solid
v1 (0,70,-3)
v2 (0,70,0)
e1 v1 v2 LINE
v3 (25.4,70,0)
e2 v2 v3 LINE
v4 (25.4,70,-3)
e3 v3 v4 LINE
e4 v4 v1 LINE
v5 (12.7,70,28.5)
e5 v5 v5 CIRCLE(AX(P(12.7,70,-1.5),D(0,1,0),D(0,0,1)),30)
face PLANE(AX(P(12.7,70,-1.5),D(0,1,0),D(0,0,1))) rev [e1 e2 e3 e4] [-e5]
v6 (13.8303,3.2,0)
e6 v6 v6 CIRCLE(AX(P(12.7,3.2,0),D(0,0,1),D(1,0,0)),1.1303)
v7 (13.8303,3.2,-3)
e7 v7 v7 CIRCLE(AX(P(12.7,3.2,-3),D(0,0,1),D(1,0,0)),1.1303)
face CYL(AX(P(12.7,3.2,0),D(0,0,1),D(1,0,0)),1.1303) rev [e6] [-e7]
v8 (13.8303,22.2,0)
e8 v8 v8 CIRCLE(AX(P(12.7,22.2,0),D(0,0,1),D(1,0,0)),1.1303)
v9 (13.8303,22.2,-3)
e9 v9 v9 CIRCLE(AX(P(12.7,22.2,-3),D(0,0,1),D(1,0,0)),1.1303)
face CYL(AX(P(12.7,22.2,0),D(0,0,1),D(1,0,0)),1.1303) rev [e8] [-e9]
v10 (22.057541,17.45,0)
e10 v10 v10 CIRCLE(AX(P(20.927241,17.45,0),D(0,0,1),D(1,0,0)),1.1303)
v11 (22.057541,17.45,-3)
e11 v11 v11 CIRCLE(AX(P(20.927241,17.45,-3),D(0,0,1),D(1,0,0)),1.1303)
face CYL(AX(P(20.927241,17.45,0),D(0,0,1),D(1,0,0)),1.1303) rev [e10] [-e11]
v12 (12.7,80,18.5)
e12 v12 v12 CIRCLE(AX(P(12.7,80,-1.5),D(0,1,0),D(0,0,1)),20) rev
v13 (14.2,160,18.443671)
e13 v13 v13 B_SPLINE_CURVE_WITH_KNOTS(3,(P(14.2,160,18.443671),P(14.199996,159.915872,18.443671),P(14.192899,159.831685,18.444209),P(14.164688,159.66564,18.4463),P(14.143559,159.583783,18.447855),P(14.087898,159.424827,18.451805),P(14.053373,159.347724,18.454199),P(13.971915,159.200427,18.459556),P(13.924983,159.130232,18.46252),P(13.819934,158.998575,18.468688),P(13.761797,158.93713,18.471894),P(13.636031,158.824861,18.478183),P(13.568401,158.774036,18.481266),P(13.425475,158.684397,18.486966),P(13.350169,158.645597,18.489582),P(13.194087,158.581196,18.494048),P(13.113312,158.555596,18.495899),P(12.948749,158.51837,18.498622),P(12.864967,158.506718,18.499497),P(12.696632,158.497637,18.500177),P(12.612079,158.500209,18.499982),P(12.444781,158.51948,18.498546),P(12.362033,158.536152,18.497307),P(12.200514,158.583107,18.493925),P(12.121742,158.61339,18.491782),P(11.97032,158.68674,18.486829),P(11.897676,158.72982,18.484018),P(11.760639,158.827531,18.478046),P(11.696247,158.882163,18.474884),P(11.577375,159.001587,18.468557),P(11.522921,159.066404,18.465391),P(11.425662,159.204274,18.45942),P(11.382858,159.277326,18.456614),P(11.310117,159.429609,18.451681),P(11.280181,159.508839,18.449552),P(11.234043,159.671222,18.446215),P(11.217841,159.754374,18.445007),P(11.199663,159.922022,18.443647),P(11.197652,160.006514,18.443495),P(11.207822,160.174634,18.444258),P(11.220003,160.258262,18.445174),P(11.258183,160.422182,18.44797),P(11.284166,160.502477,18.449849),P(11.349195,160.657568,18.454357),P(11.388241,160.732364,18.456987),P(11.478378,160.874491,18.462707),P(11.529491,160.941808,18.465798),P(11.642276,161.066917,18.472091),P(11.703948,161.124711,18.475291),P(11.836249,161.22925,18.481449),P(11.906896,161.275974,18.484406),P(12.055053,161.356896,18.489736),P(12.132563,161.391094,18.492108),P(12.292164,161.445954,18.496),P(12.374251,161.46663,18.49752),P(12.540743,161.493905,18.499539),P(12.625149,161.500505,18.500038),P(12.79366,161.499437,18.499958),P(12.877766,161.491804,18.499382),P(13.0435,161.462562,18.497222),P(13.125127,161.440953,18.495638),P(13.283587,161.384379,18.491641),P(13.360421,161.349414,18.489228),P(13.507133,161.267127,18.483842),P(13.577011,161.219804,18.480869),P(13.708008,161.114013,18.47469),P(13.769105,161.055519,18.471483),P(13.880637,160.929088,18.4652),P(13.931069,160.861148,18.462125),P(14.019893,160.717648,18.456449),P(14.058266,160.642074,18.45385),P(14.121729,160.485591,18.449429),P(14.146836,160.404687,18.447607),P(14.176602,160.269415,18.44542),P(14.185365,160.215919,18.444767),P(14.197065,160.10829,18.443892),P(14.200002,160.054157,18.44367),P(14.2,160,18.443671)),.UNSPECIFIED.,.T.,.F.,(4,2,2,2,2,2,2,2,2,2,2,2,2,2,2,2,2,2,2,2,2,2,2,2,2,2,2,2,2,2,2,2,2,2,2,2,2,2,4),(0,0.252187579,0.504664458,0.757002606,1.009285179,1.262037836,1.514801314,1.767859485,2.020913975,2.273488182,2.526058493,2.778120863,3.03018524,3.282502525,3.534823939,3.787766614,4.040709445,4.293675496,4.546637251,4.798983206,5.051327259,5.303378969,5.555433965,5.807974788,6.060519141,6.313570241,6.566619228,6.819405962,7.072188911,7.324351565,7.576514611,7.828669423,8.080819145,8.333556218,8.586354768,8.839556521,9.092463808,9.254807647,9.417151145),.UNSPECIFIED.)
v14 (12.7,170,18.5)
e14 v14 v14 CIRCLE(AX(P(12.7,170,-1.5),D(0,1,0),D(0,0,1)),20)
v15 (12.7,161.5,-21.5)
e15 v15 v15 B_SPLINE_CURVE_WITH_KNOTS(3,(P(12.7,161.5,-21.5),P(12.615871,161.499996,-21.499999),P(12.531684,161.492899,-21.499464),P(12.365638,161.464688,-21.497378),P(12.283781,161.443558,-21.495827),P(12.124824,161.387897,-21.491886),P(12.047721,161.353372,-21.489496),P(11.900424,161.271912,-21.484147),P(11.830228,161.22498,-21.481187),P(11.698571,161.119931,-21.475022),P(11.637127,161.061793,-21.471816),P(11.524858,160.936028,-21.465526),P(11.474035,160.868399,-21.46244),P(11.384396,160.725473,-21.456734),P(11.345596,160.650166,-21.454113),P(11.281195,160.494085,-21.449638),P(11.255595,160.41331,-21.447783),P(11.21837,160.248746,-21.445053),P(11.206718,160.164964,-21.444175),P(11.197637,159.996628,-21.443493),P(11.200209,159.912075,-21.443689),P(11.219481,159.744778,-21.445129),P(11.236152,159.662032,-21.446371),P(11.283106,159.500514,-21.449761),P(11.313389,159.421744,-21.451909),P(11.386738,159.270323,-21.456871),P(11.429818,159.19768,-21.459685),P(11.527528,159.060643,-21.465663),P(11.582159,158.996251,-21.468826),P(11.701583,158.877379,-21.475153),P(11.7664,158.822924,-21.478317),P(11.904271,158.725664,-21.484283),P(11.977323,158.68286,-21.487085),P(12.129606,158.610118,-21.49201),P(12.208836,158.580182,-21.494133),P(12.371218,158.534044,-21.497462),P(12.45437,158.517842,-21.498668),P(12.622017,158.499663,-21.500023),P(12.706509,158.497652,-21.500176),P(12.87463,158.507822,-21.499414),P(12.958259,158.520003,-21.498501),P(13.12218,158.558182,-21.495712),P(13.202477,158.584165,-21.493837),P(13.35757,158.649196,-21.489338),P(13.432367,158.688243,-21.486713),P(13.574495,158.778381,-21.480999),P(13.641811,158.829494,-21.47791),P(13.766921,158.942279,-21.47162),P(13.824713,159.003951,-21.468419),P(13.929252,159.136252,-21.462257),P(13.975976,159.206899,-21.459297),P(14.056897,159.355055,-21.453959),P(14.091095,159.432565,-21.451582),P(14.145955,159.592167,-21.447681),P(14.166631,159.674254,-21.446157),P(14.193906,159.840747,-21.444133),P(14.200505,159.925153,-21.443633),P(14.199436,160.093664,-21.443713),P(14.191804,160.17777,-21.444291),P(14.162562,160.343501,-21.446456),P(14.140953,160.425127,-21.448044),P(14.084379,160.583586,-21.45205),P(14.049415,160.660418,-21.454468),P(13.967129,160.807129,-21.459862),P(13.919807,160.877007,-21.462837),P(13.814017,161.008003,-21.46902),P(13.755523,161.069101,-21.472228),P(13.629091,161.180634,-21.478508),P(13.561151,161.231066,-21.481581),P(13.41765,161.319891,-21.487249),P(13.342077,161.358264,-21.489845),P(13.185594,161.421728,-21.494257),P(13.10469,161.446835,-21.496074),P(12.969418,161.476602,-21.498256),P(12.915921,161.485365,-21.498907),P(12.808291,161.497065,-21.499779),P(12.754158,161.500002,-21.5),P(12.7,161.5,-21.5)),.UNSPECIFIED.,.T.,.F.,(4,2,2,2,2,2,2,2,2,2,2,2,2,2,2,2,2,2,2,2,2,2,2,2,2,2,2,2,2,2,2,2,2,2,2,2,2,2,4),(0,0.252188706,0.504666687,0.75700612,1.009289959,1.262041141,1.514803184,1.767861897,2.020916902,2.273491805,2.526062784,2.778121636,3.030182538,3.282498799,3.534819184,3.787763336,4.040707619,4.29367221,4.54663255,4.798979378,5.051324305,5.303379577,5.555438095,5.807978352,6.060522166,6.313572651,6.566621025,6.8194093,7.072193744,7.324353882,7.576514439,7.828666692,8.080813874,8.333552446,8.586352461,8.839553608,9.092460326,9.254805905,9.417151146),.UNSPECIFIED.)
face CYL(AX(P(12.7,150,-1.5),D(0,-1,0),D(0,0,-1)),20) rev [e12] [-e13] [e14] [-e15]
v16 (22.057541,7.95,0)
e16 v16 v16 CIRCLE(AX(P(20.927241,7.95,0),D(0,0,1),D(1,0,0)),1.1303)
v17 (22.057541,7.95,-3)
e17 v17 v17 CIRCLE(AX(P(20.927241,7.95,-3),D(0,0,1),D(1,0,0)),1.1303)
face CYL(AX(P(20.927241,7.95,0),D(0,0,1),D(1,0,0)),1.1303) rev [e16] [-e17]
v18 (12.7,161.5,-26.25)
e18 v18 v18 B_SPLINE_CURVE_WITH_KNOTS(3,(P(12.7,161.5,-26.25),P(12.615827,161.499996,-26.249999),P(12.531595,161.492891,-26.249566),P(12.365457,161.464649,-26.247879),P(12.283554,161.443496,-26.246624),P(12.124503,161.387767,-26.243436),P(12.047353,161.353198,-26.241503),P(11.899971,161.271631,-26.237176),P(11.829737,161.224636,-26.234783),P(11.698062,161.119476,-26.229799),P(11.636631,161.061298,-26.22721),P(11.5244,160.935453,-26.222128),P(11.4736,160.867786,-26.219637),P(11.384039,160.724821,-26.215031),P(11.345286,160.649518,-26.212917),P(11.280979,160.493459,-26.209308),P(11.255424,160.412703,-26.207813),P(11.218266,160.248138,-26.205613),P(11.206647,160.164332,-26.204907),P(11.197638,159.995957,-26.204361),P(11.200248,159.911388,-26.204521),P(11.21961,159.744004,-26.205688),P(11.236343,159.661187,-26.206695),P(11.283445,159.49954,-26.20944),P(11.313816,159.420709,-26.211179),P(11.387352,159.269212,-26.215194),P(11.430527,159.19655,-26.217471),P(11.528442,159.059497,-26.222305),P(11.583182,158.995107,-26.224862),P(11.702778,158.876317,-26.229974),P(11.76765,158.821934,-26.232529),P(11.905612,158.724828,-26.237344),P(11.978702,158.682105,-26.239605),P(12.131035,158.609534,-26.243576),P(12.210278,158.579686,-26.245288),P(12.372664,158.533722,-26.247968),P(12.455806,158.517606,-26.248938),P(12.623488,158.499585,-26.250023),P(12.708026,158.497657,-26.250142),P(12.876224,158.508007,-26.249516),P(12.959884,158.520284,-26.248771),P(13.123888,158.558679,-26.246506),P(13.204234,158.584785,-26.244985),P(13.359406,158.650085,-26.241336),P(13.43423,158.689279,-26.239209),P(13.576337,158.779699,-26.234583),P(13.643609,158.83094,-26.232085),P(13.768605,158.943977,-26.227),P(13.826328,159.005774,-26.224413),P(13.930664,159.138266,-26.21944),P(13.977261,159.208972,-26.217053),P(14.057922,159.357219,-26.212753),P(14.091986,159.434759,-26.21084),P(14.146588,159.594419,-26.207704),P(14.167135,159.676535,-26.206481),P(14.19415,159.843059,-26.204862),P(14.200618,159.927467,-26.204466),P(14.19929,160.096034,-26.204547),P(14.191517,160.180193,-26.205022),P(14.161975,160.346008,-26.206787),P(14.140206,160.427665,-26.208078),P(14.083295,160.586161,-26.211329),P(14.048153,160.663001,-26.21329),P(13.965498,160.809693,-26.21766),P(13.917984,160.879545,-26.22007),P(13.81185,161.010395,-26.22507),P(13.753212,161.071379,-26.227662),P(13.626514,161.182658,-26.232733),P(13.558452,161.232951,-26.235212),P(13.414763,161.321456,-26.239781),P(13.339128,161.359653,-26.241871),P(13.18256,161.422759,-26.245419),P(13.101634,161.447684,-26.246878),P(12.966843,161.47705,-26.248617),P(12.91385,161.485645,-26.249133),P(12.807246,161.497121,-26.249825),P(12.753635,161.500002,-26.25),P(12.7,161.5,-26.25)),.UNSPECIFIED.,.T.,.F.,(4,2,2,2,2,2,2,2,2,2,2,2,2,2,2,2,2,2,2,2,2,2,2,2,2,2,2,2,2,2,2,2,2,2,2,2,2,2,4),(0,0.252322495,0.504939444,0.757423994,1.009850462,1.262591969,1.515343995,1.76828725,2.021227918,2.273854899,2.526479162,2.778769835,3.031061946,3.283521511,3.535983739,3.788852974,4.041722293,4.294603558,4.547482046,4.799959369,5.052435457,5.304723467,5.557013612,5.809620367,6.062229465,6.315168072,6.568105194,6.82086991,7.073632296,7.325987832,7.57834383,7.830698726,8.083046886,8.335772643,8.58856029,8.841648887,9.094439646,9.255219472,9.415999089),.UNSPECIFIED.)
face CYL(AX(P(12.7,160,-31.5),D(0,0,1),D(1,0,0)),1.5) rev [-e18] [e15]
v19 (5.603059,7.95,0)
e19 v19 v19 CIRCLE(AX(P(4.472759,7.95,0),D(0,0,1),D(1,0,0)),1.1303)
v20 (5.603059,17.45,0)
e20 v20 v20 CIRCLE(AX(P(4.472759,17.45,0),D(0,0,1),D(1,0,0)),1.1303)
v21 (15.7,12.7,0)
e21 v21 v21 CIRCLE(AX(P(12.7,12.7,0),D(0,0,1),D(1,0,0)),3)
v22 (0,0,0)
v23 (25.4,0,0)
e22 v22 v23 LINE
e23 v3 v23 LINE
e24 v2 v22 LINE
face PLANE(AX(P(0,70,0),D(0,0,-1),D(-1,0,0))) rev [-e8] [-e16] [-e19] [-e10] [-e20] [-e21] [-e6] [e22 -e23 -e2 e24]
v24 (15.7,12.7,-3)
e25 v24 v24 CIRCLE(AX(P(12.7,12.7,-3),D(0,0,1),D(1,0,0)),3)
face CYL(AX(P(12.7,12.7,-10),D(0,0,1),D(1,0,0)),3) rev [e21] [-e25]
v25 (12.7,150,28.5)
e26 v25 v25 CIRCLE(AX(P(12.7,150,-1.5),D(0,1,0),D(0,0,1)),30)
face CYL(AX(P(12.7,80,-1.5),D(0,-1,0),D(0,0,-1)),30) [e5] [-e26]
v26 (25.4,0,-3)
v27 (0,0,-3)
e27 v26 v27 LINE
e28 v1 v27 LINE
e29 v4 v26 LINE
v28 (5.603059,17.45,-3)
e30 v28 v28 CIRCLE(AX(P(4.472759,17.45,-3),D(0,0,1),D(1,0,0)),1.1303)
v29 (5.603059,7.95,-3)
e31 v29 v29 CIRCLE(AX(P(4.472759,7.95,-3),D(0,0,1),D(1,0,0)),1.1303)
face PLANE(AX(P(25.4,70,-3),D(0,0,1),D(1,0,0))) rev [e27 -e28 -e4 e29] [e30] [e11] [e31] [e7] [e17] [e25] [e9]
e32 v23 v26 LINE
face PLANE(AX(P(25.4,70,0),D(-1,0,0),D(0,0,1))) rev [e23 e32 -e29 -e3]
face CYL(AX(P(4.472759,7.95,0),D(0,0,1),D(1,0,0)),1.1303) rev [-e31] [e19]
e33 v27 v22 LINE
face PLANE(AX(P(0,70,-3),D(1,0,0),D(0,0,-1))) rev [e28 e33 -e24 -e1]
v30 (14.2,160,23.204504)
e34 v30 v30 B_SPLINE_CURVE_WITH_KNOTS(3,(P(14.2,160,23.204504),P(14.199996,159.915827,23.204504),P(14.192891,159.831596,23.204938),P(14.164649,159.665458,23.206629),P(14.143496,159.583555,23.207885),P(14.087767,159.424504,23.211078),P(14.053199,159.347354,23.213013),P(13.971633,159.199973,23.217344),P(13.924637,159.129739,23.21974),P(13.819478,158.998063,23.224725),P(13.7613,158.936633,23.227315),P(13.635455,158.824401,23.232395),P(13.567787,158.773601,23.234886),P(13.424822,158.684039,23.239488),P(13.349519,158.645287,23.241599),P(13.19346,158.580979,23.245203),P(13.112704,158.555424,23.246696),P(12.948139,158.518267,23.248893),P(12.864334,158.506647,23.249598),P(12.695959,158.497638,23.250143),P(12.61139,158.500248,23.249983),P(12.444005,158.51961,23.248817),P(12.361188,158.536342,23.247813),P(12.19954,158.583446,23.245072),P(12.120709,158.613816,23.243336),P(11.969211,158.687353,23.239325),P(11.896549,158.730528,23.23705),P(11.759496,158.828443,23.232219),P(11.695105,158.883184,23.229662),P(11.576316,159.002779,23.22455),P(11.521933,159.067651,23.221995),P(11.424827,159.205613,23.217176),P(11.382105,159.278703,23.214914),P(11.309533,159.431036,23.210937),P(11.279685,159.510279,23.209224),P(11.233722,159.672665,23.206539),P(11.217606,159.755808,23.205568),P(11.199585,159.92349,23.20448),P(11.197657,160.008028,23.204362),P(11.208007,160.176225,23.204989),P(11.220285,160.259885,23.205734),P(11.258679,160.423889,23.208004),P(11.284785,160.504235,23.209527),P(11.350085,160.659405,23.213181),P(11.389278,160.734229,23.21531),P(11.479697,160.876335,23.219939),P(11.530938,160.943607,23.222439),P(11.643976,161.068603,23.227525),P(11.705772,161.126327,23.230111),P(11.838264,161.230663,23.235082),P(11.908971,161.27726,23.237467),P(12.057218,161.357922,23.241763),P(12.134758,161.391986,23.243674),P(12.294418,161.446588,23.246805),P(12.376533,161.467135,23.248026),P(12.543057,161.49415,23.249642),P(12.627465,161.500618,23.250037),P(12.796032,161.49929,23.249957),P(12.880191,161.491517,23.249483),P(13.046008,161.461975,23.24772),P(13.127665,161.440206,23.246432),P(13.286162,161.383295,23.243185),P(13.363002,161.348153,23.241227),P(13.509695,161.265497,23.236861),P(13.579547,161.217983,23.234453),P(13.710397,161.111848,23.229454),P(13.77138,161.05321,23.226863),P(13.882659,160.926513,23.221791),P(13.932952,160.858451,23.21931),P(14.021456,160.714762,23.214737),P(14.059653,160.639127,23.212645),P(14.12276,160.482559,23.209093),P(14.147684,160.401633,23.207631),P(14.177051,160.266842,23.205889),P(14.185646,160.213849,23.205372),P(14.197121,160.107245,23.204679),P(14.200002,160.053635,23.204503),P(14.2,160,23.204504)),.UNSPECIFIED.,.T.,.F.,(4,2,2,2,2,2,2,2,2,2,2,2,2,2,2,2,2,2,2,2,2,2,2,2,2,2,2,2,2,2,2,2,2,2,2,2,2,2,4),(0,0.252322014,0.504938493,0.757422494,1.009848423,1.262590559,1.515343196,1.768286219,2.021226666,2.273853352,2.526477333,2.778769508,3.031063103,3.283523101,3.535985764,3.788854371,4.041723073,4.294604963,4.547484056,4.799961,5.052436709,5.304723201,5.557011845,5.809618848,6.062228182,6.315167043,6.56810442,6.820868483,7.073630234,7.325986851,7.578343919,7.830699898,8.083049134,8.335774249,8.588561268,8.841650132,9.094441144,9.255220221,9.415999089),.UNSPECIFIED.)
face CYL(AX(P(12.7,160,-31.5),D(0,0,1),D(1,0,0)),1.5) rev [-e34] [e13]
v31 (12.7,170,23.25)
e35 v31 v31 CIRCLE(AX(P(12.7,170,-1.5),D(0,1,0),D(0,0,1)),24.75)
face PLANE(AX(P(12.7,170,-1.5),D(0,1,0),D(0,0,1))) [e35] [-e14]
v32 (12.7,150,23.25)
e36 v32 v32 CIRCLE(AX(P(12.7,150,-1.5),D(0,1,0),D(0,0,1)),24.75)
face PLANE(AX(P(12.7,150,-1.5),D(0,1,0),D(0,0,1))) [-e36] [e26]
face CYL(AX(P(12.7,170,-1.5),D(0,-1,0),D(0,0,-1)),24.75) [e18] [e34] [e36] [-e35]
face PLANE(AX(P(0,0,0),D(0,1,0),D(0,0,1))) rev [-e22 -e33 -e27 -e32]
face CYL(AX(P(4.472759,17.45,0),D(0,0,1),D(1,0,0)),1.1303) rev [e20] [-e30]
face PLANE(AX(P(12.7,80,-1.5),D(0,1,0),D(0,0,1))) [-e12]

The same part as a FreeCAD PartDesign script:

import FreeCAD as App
import Part
import Sketcher

V = App.Vector

doc = App.newDocument("Part")
body = doc.addObject("PartDesign::Body", "Body")

# Sketch on XZ plane
sketch1 = body.newObject("Sketcher::SketchObject", "Sketch")
sketch1.AttachmentSupport = (doc.getObject("XZ_Plane"), [""])
sketch1.MapMode = "FlatFace"
sketch1.addGeometry(Part.LineSegment(V(0, -3, 0), V(0, 0, 0)), False)
sketch1.addGeometry(Part.LineSegment(V(0, 0, 0), V(25.4, 0, 0)), False)
sketch1.addGeometry(Part.LineSegment(V(25.4, 0, 0), V(25.4, -3, 0)), False)
sketch1.addGeometry(Part.LineSegment(V(25.4, -3, 0), V(0, -3, 0)), False)
sketch1.addConstraint(Sketcher.Constraint("Coincident", 0, 2, 1, 1))
sketch1.addConstraint(Sketcher.Constraint("Coincident", 1, 2, 2, 1))
sketch1.addConstraint(Sketcher.Constraint("Coincident", 2, 2, 3, 1))
sketch1.addConstraint(Sketcher.Constraint("Coincident", 3, 2, 0, 1))
sketch1.addConstraint(Sketcher.Constraint("Vertical", 0))
sketch1.addConstraint(Sketcher.Constraint("Horizontal", 1))
sketch1.addConstraint(Sketcher.Constraint("Vertical", 2))
sketch1.addConstraint(Sketcher.Constraint("Horizontal", 3))
sketch1.addConstraint(Sketcher.Constraint("Coincident", 0, 2, -1, 1))
sketch1.addConstraint(Sketcher.Constraint("DistanceY", 0, 1, 0, 2, 3.0))
sketch1.addConstraint(Sketcher.Constraint("DistanceX", 1, 1, 1, 2, 25.4))
pad1 = body.newObject("PartDesign::Pad", "Pad")
pad1.Profile = sketch1
pad1.Length = 70
pad1.Reversed = True

# Sketch on XZ plane
sketch2 = body.newObject("Sketcher::SketchObject", "Sketch001")
sketch2.AttachmentSupport = (doc.getObject("XZ_Plane"), [""])
sketch2.MapMode = "FlatFace"
sketch2.AttachmentOffset = App.Placement(V(0, 0, -70), App.Rotation())
sketch2.addGeometry(Part.Circle(V(13, -2, 0), V(0, 0, 1), 30), False)
sketch2.addConstraint(Sketcher.Constraint("Diameter", 0, 60.0))
sketch2.addConstraint(Sketcher.Constraint("DistanceX", -1, 1, 0, 3, 12.7))
sketch2.addConstraint(Sketcher.Constraint("DistanceY", 0, 3, -1, 1, 1.5))
pad2 = body.newObject("PartDesign::Pad", "Pad001")
pad2.Profile = sketch2
pad2.Length = 10
pad2.Reversed = True

# Sketch on XZ plane
sketch3 = body.newObject("Sketcher::SketchObject", "Sketch002")
sketch3.AttachmentSupport = (doc.getObject("XZ_Plane"), [""])
sketch3.MapMode = "FlatFace"
sketch3.AttachmentOffset = App.Placement(V(0, 0, -80), App.Rotation())
sketch3.addGeometry(Part.Circle(V(13, -2, 0), V(0, 0, 1), 30), False)
sketch3.addGeometry(Part.Circle(V(13, -2, 0), V(0, 0, 1), 20), False)
sketch3.addConstraint(Sketcher.Constraint("Coincident", 1, 3, 0, 3))
sketch3.addConstraint(Sketcher.Constraint("Diameter", 0, 60.0))
sketch3.addConstraint(Sketcher.Constraint("Diameter", 1, 40.0))
sketch3.addConstraint(Sketcher.Constraint("DistanceX", -1, 1, 0, 3, 12.7))
sketch3.addConstraint(Sketcher.Constraint("DistanceY", 0, 3, -1, 1, 1.5))
pad3 = body.newObject("PartDesign::Pad", "Pad002")
pad3.Profile = sketch3
pad3.Length = 70
pad3.Reversed = True

# Sketch on XZ plane
sketch4 = body.newObject("Sketcher::SketchObject", "Sketch003")
sketch4.AttachmentSupport = (doc.getObject("XZ_Plane"), [""])
sketch4.MapMode = "FlatFace"
sketch4.AttachmentOffset = App.Placement(V(0, 0, -150), App.Rotation())
sketch4.addGeometry(Part.Circle(V(13, -2, 0), V(0, 0, 1), 25), False)
sketch4.addGeometry(Part.Circle(V(13, -2, 0), V(0, 0, 1), 20), False)
sketch4.addConstraint(Sketcher.Constraint("Coincident", 1, 3, 0, 3))
sketch4.addConstraint(Sketcher.Constraint("Diameter", 1, 40.0))
sketch4.addConstraint(Sketcher.Constraint("Diameter", 0, 49.5))
sketch4.addConstraint(Sketcher.Constraint("DistanceX", -1, 1, 0, 3, 12.7))
sketch4.addConstraint(Sketcher.Constraint("DistanceY", 0, 3, -1, 1, 1.5))
pad4 = body.newObject("PartDesign::Pad", "Pad003")
pad4.Profile = sketch4
pad4.Length = 20
pad4.Reversed = True

# Sketch on XY plane
sketch5 = body.newObject("Sketcher::SketchObject", "Sketch004")
sketch5.AttachmentSupport = (doc.getObject("XY_Plane"), [""])
sketch5.MapMode = "FlatFace"
sketch5.addGeometry(Part.Circle(V(12.7, 160, 0), V(0, 0, 1), 1.5), False)
sketch5.addConstraint(Sketcher.Constraint("Diameter", 0, 3.0))
sketch5.addConstraint(Sketcher.Constraint("DistanceY", -1, 1, 0, 3, 160.0))
sketch5.addConstraint(Sketcher.Constraint("DistanceX", -1, 1, 0, 3, 12.7))
pocket1 = body.newObject("PartDesign::Pocket", "Pocket")
pocket1.Profile = sketch5
pocket1.Type = "ThroughAll"
pocket1.Midplane = True

# Sketch on XY plane
sketch6 = body.newObject("Sketcher::SketchObject", "Sketch005")
sketch6.AttachmentSupport = (doc.getObject("XY_Plane"), [""])
sketch6.MapMode = "FlatFace"
sketch6.addGeometry(Part.Circle(V(12.7, 22.2, 0), V(0, 0, 1), 1.1), False)
sketch6.addGeometry(Part.Circle(V(20.9, 17.4, 0), V(0, 0, 1), 1.1), False)
sketch6.addGeometry(Part.Circle(V(20.9, 8, 0), V(0, 0, 1), 1.1), False)
sketch6.addGeometry(Part.Circle(V(12.7, 3.2, 0), V(0, 0, 1), 1.1), False)
sketch6.addGeometry(Part.Circle(V(4.5, 8, 0), V(0, 0, 1), 1.1), False)
sketch6.addGeometry(Part.Circle(V(4.5, 17.4, 0), V(0, 0, 1), 1.1), False)
sketch6.addConstraint(Sketcher.Constraint("Equal", 0, 1))
sketch6.addConstraint(Sketcher.Constraint("Equal", 1, 2))
sketch6.addConstraint(Sketcher.Constraint("Equal", 2, 3))
sketch6.addConstraint(Sketcher.Constraint("Equal", 3, 4))
sketch6.addConstraint(Sketcher.Constraint("Equal", 4, 5))
sketch6.addConstraint(Sketcher.Constraint("Horizontal", 2, 3, 4, 3))
sketch6.addConstraint(Sketcher.Constraint("Horizontal", 1, 3, 5, 3))
sketch6.addConstraint(Sketcher.Constraint("Vertical", 1, 3, 2, 3))
sketch6.addConstraint(Sketcher.Constraint("Vertical", 0, 3, 3, 3))
sketch6.addConstraint(Sketcher.Constraint("Vertical", 4, 3, 5, 3))
sketch6.addConstraint(Sketcher.Constraint("DistanceY", 3, 3, 0, 3, 19.0))
sketch6.addConstraint(Sketcher.Constraint("Diameter", 0, 2.2606))
sketch6.addConstraint(Sketcher.Constraint("DistanceX", -1, 1, 0, 3, 12.7))
sketch6.addConstraint(Sketcher.Constraint("DistanceY", -1, 1, 0, 3, 22.2))
sketch6.addConstraint(Sketcher.Constraint("DistanceY", 2, 3, 1, 3, 9.5))
sketch6.addConstraint(Sketcher.Constraint("DistanceY", -1, 1, 1, 3, 17.45))
sketch6.addConstraint(Sketcher.Constraint("DistanceX", -1, 1, 1, 3, 20.927241))
sketch6.addConstraint(Sketcher.Constraint("DistanceX", -1, 1, 4, 3, 4.472759))
doc.recompute()
hole = body.newObject("PartDesign::Hole", "Hole")
hole.Profile = sketch6
hole.ThreadType = "None"
hole.Diameter = 2.2606
hole.DepthType = "Dimension"
hole.Depth = 7.6
hole.DrillPoint = "Angled"
hole.DrillPointAngle = 118

# Sketch on XY plane
sketch7 = body.newObject("Sketcher::SketchObject", "Sketch006")
sketch7.AttachmentSupport = (doc.getObject("XY_Plane"), [""])
sketch7.MapMode = "FlatFace"
sketch7.addGeometry(Part.Circle(V(12.7, 12.7, 0), V(0, 0, 1), 3), False)
sketch7.addConstraint(Sketcher.Constraint("Diameter", 0, 6.0))
sketch7.addConstraint(Sketcher.Constraint("DistanceX", -1, 1, 0, 3, 12.7))
sketch7.addConstraint(Sketcher.Constraint("DistanceY", -1, 1, 0, 3, 12.7))
pocket2 = body.newObject("PartDesign::Pocket", "Pocket001")
pocket2.Profile = sketch7
pocket2.Length = 10

doc.recompute()
